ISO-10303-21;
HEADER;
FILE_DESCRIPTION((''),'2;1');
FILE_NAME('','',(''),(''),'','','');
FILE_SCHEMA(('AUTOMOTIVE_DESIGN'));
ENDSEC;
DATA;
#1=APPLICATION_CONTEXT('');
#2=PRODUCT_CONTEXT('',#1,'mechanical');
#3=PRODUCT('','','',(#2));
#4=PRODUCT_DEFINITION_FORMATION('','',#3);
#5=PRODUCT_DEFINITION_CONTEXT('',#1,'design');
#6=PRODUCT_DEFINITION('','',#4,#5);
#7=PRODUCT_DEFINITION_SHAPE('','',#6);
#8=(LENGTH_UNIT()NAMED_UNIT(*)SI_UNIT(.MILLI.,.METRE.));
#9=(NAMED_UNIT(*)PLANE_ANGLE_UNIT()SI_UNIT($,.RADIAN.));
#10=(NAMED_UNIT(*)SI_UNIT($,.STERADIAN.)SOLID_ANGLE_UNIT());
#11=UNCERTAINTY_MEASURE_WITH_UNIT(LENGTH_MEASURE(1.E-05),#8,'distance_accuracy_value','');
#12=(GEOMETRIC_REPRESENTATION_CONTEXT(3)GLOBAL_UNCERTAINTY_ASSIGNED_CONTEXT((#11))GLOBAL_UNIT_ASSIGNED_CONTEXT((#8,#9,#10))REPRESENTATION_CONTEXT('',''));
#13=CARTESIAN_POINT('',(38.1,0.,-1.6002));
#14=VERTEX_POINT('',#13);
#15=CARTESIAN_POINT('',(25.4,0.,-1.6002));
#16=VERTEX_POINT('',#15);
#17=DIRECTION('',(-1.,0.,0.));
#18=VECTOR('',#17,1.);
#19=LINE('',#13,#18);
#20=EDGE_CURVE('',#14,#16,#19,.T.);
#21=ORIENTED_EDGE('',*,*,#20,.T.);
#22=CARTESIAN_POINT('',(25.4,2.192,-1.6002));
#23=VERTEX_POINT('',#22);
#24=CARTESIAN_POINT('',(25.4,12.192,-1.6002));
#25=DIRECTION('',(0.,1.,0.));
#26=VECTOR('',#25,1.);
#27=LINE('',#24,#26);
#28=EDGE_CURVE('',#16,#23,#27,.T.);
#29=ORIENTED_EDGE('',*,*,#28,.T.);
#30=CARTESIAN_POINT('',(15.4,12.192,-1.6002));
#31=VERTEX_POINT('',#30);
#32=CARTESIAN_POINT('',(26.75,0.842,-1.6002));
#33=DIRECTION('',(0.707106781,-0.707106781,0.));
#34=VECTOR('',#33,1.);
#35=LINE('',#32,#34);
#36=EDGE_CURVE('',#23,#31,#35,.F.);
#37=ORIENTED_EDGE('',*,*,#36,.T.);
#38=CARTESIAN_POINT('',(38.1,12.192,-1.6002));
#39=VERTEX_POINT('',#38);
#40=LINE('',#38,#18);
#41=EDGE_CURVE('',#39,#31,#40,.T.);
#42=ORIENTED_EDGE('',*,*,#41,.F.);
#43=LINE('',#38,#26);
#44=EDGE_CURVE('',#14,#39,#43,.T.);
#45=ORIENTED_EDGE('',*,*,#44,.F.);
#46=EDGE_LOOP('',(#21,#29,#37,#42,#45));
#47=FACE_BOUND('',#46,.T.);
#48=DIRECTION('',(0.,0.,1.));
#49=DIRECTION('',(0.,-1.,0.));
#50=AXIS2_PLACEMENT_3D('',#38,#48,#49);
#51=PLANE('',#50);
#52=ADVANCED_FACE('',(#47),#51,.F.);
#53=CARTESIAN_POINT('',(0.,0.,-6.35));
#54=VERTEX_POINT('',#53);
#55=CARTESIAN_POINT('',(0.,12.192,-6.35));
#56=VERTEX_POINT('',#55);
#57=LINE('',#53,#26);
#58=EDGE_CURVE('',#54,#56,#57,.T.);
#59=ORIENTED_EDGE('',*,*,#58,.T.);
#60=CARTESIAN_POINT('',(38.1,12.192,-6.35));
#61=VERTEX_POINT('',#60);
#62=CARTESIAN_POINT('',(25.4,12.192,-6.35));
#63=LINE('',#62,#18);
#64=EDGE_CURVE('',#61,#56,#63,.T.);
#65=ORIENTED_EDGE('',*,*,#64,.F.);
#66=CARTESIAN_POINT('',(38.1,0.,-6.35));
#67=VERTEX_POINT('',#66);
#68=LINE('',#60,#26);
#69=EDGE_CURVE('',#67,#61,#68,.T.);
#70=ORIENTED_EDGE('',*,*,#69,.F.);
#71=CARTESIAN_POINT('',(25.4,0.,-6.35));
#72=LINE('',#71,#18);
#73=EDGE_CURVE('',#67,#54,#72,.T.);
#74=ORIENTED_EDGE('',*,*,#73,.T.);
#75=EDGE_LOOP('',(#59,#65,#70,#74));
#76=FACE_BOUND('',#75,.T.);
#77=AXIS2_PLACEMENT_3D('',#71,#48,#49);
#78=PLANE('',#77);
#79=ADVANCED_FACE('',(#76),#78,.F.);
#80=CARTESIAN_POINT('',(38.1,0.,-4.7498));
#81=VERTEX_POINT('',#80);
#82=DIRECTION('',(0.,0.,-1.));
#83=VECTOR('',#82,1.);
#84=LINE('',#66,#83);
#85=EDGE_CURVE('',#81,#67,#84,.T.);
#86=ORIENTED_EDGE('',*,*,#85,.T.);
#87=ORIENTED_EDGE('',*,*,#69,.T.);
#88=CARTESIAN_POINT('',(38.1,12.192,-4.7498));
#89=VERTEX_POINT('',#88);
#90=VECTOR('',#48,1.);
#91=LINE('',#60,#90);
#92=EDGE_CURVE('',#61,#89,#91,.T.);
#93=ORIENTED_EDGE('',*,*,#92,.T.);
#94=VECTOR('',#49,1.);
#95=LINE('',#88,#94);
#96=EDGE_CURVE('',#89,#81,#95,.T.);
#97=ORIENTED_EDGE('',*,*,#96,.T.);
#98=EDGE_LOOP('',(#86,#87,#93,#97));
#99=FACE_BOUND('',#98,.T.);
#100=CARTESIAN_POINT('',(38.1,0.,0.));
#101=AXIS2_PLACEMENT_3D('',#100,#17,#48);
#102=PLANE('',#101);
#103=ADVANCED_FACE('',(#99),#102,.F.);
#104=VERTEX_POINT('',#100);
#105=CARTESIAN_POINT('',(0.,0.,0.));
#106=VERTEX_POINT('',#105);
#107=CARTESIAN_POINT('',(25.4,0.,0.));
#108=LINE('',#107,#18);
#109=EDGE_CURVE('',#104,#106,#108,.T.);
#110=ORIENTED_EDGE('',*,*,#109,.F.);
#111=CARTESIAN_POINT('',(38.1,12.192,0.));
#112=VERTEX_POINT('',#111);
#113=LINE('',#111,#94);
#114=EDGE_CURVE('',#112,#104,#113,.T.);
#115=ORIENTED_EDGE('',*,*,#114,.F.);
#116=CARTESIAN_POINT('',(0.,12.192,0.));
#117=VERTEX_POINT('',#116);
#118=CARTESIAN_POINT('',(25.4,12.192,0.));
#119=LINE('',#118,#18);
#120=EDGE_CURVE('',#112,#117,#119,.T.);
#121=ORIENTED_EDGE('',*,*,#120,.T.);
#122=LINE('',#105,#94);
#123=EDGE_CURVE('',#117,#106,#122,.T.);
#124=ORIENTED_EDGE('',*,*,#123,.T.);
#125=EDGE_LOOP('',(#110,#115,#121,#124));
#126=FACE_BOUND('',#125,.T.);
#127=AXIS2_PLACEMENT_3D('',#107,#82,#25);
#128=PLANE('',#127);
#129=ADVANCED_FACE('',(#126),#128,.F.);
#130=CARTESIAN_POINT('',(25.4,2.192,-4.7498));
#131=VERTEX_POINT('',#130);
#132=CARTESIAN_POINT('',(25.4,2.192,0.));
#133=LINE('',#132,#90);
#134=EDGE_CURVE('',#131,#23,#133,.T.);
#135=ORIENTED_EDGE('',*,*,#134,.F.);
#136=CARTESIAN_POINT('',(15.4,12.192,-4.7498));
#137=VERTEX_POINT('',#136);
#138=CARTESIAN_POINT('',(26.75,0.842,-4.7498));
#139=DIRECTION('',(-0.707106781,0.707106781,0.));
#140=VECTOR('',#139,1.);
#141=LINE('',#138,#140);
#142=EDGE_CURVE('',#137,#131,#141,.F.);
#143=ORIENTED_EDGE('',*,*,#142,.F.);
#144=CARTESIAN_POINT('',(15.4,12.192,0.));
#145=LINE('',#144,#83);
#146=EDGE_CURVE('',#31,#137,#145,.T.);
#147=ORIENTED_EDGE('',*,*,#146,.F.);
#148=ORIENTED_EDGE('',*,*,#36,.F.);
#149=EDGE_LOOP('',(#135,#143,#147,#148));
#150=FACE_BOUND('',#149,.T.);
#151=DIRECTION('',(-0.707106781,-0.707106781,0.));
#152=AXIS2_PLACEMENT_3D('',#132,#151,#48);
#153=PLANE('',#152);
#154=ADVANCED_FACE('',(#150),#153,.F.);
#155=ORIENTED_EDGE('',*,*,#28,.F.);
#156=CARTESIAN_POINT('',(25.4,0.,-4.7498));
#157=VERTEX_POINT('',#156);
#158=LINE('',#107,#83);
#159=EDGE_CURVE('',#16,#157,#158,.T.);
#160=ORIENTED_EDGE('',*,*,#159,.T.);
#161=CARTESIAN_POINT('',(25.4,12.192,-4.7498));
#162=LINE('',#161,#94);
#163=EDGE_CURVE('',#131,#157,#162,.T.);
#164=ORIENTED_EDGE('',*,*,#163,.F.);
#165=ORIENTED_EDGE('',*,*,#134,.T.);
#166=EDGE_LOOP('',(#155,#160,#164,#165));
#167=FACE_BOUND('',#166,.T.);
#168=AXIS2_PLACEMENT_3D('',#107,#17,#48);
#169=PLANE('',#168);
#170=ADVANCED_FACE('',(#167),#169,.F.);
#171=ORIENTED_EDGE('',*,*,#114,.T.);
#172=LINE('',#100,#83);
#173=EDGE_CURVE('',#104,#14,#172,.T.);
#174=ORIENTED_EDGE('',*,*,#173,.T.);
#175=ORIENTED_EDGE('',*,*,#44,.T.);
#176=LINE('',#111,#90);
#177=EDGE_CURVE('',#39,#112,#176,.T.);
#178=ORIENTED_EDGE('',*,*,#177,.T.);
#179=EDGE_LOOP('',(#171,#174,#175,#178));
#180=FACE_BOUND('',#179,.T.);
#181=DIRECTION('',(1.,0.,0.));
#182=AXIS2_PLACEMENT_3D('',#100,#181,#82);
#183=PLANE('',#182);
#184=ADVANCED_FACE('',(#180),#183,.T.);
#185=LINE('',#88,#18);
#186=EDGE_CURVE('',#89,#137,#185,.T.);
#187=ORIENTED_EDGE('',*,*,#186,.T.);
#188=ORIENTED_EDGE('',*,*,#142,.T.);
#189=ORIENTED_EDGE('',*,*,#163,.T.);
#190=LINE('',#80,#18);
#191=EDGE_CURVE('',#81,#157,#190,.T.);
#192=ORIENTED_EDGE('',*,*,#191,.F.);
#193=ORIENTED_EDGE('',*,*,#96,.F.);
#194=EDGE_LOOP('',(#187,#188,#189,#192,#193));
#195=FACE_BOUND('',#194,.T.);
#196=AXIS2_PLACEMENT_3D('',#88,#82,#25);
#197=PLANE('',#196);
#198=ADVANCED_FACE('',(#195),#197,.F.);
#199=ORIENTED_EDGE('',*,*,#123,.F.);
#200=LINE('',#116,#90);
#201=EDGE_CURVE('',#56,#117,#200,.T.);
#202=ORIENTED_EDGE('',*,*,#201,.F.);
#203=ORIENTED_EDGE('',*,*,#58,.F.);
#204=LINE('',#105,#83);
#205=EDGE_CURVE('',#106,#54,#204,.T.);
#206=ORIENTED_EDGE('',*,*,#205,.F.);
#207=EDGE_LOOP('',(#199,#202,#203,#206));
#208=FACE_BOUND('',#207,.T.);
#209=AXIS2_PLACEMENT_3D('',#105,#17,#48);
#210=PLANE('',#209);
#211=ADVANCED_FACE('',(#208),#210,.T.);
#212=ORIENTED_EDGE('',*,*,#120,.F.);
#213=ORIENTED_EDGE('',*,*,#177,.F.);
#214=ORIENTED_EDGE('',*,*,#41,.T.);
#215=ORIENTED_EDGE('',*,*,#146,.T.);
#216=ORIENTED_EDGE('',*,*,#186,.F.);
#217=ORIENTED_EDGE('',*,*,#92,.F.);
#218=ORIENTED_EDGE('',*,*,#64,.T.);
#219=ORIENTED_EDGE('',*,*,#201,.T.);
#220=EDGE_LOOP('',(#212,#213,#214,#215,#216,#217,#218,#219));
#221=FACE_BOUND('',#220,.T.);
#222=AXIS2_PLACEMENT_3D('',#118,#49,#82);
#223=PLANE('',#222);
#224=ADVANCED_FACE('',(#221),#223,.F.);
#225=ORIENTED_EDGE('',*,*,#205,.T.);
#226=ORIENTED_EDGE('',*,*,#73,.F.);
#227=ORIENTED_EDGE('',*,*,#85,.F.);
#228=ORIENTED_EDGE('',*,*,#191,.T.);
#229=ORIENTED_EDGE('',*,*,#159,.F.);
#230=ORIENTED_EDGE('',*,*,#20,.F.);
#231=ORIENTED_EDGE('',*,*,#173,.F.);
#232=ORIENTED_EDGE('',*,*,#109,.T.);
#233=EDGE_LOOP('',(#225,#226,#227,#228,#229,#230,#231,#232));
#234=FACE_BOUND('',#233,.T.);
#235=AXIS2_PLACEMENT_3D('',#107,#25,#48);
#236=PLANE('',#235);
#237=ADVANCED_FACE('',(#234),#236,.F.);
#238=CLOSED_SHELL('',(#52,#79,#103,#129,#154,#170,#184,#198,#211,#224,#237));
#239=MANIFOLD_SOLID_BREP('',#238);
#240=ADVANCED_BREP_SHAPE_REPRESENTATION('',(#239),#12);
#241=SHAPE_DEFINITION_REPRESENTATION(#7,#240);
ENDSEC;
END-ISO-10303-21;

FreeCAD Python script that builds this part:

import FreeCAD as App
import Part
import Sketcher
Q = App.Units.Quantity


def edges_at(feature, points):
    """Names of the edges that pass closest to the given points."""
    edges = feature.Shape.Edges
    near = lambda p: min(range(len(edges)), key=lambda i: edges[i].distToShape(Part.Vertex(*p))[0])
    return sorted({f"Edge{near(p) + 1}" for p in points})


def add_polygon(sketch, points):
    """Adds a closed chain of lines whose ends are joined by coincident constraints."""
    first, n = sketch.GeometryCount, len(points)
    for a, b in zip(points, points[1:] + points[:1]):
        sketch.addGeometry(Part.LineSegment(App.Vector(*a, 0), App.Vector(*b, 0)), False)
    for i in range(n):
        sketch.addConstraint(Sketcher.Constraint("Coincident", first + i, 2, first + (i + 1) % n, 1))

doc = App.newDocument("Part")
body = doc.addObject("PartDesign::Body", "Body")

# Sketch on YZ plane
sketch1 = body.newObject("Sketcher::SketchObject", "Sketch")
sketch1.AttachmentSupport = (doc.getObject("YZ_Plane"), [""])
sketch1.MapMode = "FlatFace"
add_polygon(sketch1, [(12, 0), (0, 0), (0, -6), (12, -6)])  # lines 0-3
sketch1.addConstraint([
    Sketcher.Constraint("Horizontal", 0),
    Sketcher.Constraint("Vertical", 1),
    Sketcher.Constraint("Horizontal", 2),
    Sketcher.Constraint("Vertical", 3),
    Sketcher.Constraint("Coincident", 0, 2, -1, 1),
    Sketcher.Constraint("DistanceX", 0, 2, 0, 1, Q("0.48 in")),
    Sketcher.Constraint("DistanceY", 1, 2, 1, 1, Q("0.25 in")),
])
pad1 = body.newObject("PartDesign::Pad", "Pad")
pad1.Profile = sketch1
pad1.Length = Q("1 in")

# Sketch on YZ plane
sketch2 = body.newObject("Sketcher::SketchObject", "Sketch001")
sketch2.AttachmentSupport = (doc.getObject("YZ_Plane"), [""])
sketch2.MapMode = "FlatFace"
sketch2.AttachmentOffset = App.Placement(App.Vector(0, 0, 1 * 25.4), App.Rotation())
add_polygon(sketch2, [(12.2, 0), (0, 0), (0, -1.6), (12.2, -1.6)])  # lines 0-3
add_polygon(sketch2, [(12.2, -4.7), (0, -4.7), (0, -6.3), (12.2, -6.3)])  # lines 4-7
sketch2.addConstraint([
    Sketcher.Constraint("Horizontal", 0),
    Sketcher.Constraint("Vertical", 1),
    Sketcher.Constraint("Horizontal", 2),
    Sketcher.Constraint("Vertical", 3),
    Sketcher.Constraint("Horizontal", 4),
    Sketcher.Constraint("Vertical", 5),
    Sketcher.Constraint("Horizontal", 6),
    Sketcher.Constraint("Vertical", 7),
    Sketcher.Constraint("Coincident", 0, 2, -1, 1),
    Sketcher.Constraint("PointOnObject", 4, 2, -2),
    Sketcher.Constraint("Vertical", 3, 2, 6, 2),
    Sketcher.Constraint("Equal", 3, 5),
    Sketcher.Constraint("DistanceX", 0, 2, 0, 1, Q("0.48 in")),
    Sketcher.Constraint("DistanceY", 1, 2, 1, 1, Q("0.063 in")),
    Sketcher.Constraint("DistanceY", 5, 2, -1, 1, Q("0.25 in")),
])
pad2 = body.newObject("PartDesign::Pad", "Pad001")
pad2.Profile = sketch2
pad2.Length = Q("0.5 in")
doc.recompute()

chamfer = body.newObject("PartDesign::Chamfer", "Chamfer")
chamfer.Base = (pad2, edges_at(pad2, [(25.4, 12.192, -3.175)]))
chamfer.Size = 10

doc.recompute()
